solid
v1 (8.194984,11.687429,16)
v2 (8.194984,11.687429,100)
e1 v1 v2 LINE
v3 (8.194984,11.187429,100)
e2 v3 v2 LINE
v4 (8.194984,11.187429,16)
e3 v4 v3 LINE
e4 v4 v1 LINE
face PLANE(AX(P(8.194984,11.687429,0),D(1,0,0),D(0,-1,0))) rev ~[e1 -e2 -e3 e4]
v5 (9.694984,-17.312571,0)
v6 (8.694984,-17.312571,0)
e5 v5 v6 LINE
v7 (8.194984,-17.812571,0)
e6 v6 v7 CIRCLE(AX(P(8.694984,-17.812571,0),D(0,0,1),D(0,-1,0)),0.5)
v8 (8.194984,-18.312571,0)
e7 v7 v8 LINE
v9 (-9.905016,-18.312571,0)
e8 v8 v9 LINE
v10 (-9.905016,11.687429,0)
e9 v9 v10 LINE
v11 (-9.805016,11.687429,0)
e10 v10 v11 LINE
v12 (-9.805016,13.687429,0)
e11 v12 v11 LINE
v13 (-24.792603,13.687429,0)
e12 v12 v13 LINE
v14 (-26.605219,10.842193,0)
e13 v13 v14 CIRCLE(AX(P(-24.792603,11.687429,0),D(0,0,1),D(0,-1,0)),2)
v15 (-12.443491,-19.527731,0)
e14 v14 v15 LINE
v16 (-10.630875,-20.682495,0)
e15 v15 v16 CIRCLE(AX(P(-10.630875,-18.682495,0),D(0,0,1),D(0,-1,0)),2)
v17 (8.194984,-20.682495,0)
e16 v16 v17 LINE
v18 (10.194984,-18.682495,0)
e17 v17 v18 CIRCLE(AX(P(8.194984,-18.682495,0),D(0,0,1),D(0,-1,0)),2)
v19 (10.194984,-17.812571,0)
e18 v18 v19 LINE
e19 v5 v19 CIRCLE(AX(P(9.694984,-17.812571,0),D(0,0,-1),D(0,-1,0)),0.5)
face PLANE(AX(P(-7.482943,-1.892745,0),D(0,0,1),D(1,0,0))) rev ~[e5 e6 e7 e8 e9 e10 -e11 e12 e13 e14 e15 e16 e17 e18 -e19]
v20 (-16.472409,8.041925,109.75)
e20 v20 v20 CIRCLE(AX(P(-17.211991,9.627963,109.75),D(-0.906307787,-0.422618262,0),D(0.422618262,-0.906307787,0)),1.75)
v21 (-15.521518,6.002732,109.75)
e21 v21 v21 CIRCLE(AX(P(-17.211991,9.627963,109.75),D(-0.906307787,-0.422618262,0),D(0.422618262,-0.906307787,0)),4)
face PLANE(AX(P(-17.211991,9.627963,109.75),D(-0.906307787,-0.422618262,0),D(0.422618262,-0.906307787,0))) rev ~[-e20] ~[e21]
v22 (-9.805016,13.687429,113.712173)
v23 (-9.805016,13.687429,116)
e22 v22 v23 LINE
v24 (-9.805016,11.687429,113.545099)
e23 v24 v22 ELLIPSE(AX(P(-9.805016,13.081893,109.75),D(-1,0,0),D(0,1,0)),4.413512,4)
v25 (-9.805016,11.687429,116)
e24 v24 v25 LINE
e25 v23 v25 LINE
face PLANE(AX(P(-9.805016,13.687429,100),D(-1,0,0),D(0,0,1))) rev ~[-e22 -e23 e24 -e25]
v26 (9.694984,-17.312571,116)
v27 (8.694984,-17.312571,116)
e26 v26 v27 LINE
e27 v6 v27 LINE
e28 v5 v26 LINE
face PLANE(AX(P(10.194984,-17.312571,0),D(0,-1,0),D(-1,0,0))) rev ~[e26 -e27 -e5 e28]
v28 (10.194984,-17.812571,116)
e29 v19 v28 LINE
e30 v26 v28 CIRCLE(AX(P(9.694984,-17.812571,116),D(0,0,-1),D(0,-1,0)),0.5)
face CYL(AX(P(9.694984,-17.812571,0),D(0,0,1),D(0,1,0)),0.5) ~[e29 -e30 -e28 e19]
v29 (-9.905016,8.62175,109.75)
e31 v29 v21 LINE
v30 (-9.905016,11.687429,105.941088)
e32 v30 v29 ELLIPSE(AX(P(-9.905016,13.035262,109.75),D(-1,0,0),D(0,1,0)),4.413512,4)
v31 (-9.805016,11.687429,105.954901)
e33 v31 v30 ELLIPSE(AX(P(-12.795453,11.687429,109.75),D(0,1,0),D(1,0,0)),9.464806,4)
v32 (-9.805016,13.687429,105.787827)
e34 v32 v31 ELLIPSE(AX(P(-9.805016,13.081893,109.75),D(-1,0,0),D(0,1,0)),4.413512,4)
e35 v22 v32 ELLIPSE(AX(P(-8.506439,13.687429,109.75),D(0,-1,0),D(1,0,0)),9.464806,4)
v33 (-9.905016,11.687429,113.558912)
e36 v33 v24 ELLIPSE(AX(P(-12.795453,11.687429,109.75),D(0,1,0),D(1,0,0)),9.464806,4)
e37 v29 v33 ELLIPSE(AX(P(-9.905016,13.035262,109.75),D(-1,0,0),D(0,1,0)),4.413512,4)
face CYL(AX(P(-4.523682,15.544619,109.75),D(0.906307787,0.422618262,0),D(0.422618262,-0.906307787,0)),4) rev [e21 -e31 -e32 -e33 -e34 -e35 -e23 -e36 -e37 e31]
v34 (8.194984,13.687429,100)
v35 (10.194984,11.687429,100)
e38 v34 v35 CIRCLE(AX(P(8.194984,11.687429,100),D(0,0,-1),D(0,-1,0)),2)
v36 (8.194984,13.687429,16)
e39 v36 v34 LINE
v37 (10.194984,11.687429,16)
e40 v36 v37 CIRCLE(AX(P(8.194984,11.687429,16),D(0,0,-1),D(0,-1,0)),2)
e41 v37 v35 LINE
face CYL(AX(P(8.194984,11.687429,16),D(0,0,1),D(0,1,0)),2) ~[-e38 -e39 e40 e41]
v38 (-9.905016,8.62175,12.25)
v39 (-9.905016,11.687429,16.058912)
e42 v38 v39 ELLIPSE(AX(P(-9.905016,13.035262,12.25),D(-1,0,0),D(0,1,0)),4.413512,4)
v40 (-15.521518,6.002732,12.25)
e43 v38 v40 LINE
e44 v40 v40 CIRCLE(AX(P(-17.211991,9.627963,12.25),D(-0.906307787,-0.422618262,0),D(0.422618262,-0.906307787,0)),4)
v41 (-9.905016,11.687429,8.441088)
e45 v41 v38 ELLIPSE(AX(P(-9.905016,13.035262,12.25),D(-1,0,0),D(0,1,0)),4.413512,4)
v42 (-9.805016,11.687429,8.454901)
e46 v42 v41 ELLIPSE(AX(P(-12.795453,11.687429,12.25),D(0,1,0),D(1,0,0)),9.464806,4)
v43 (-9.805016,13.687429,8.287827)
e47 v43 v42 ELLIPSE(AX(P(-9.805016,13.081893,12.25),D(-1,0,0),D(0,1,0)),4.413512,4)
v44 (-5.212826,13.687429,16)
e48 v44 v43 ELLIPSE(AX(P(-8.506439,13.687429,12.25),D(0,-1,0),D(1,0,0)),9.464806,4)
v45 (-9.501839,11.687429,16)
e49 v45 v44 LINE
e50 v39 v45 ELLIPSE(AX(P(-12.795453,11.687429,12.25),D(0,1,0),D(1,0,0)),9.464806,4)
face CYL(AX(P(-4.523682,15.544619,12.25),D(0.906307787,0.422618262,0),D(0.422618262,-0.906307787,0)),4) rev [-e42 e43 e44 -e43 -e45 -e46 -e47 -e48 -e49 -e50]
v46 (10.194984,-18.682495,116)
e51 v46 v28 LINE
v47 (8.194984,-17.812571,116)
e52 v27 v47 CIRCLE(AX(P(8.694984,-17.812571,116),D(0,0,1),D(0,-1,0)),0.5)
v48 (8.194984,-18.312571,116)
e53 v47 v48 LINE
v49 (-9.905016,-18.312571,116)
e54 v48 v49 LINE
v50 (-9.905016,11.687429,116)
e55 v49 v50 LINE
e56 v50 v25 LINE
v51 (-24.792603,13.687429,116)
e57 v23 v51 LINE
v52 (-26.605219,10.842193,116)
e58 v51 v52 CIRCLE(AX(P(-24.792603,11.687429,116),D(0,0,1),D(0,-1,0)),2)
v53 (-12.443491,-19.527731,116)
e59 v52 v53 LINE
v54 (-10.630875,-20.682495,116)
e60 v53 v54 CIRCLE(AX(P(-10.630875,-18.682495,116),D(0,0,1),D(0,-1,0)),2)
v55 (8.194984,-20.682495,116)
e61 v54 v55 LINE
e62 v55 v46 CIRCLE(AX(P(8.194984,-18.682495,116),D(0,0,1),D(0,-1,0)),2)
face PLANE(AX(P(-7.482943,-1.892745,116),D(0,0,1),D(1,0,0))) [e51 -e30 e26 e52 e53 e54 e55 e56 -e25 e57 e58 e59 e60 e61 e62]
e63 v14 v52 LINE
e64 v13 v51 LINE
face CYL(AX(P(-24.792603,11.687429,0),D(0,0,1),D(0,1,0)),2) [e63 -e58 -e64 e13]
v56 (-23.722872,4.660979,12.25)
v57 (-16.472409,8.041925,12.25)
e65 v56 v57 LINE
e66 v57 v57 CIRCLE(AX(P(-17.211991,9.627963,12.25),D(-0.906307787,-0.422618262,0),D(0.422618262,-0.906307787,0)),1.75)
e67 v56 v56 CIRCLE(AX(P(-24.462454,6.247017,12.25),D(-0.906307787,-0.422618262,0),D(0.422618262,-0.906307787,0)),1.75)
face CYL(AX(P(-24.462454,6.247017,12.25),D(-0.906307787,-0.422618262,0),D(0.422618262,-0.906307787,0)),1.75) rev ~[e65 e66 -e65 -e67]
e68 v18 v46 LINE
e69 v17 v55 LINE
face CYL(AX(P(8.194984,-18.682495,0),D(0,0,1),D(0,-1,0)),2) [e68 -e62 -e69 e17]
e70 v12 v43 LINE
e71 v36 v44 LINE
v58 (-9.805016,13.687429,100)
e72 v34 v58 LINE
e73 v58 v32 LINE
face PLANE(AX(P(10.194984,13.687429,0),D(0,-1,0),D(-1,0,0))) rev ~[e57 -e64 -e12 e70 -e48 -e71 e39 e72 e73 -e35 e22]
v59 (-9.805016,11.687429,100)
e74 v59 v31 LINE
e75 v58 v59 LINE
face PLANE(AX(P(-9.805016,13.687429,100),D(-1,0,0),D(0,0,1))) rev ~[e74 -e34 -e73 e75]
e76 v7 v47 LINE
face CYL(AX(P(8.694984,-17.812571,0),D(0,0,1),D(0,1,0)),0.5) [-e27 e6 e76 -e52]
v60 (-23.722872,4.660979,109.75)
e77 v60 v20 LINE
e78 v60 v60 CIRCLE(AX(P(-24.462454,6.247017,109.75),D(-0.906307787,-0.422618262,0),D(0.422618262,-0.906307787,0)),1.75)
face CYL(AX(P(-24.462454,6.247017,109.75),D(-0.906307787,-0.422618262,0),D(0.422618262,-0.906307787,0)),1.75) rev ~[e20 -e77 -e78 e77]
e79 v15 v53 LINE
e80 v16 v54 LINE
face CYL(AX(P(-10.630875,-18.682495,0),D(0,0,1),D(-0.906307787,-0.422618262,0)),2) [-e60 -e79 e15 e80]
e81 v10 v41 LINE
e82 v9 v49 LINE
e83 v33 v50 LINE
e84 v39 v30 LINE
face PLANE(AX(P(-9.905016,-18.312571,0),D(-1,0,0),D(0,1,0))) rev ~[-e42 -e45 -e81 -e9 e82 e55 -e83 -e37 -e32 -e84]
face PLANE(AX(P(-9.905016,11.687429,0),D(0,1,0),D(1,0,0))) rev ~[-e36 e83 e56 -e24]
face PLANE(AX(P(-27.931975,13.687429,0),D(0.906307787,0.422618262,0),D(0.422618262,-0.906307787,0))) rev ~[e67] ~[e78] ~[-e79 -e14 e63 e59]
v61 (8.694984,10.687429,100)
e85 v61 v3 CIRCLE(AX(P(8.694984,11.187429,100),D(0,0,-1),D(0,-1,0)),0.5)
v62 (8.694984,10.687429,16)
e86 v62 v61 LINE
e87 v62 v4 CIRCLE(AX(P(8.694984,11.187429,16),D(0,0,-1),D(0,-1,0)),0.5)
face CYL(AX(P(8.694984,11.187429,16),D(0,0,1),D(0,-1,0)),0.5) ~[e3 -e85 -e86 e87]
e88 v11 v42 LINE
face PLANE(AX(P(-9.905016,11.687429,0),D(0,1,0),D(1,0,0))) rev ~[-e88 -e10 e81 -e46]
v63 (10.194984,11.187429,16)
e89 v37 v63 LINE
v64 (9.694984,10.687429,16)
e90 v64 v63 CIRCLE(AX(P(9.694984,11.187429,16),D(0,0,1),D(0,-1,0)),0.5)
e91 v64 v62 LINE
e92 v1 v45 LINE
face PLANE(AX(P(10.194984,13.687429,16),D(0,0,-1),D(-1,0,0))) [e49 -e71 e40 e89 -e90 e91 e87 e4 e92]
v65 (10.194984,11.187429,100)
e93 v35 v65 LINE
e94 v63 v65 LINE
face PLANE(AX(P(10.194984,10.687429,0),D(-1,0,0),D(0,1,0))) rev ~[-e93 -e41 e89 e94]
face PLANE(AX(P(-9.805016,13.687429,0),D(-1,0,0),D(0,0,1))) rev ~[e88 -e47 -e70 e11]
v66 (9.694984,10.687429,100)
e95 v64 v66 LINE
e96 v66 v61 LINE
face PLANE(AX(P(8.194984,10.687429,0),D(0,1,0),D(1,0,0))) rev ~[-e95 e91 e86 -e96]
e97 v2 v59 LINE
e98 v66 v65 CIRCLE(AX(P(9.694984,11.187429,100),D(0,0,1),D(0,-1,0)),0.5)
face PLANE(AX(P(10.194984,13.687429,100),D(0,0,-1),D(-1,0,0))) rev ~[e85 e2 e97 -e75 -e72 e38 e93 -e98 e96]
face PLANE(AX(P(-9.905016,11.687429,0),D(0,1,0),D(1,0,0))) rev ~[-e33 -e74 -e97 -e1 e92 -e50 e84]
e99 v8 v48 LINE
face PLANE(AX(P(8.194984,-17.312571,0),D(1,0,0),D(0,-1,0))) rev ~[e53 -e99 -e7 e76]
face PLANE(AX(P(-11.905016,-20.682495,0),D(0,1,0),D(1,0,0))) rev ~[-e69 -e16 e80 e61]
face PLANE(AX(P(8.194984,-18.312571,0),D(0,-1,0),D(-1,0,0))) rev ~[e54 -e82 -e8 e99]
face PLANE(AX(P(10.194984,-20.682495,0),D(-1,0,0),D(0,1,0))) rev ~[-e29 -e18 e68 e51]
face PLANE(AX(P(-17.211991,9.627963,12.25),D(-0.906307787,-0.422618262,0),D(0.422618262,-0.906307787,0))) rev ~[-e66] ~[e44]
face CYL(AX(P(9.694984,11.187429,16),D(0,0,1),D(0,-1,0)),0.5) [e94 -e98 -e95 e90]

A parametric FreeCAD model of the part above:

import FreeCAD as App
import Part
import Sketcher

V = App.Vector
Q = App.Units.Quantity


def edges_at(feature, points):
    """Names of the edges that pass closest to the given points."""
    edges = feature.Shape.Edges
    near = lambda p: min(range(len(edges)), key=lambda i: edges[i].distToShape(Part.Vertex(*p))[0])
    return sorted({f"Edge{near(p) + 1}" for p in points})

doc = App.newDocument("Part")
body = doc.addObject("PartDesign::Body", "Body")

# Sketch on XY plane
sketch1 = body.newObject("Sketcher::SketchObject", "Sketch")
sketch1.AttachmentSupport = (doc.getObject("XY_Plane"), [""])
sketch1.MapMode = "FlatFace"
sketch1.addGeometry([
    Part.LineSegment(V(10.194984, 13.687429, 0), V(-27.931975, 13.687429, 0)),  # 0
    Part.LineSegment(V(-27.931975, 13.687429, 0), V(-11.905016, -20.682495, 0)),  # 1
    Part.LineSegment(V(-11.905016, -20.682495, 0), V(10.194984, -20.682495, 0)),  # 2
    Part.LineSegment(V(10.194984, -20.682495, 0), V(10.194984, -17.312571, 0)),  # 3
    Part.LineSegment(V(10.194984, -17.312571, 0), V(8.194984, -17.312571, 0)),  # 4
    Part.LineSegment(V(8.194984, -17.312571, 0), V(8.194984, -18.312571, 0)),  # 5
    Part.LineSegment(V(8.194984, -18.312571, 0), V(-9.905016, -18.312571, 0)),  # 6
    Part.LineSegment(V(-9.905016, -18.312571, 0), V(-9.905016, 11.687429, 0)),  # 7
    Part.LineSegment(V(-9.905016, 11.687429, 0), V(8.194984, 11.687429, 0)),  # 8
    Part.LineSegment(V(8.194984, 11.687429, 0), V(8.194984, 10.687429, 0)),  # 9
    Part.LineSegment(V(8.194984, 10.687429, 0), V(10.194984, 10.687429, 0)),  # 10
    Part.LineSegment(V(10.194984, 10.687429, 0), V(10.194984, 13.687429, 0)),  # 11
], False)
sketch1.addConstraint([
    Sketcher.Constraint("Coincident", 0, 2, 1, 1),
    Sketcher.Constraint("Coincident", 1, 2, 2, 1),
    Sketcher.Constraint("Coincident", 2, 2, 3, 1),
    Sketcher.Constraint("Coincident", 3, 2, 4, 1),
    Sketcher.Constraint("Coincident", 4, 2, 5, 1),
    Sketcher.Constraint("Coincident", 5, 2, 6, 1),
    Sketcher.Constraint("Coincident", 6, 2, 7, 1),
    Sketcher.Constraint("Coincident", 7, 2, 8, 1),
    Sketcher.Constraint("Coincident", 8, 2, 9, 1),
    Sketcher.Constraint("Coincident", 9, 2, 10, 1),
    Sketcher.Constraint("Coincident", 10, 2, 11, 1),
    Sketcher.Constraint("Coincident", 11, 2, 0, 1),
    Sketcher.Constraint("Horizontal", 0),
    Sketcher.Constraint("Horizontal", 2),
    Sketcher.Constraint("Vertical", 3),
    Sketcher.Constraint("Horizontal", 4),
    Sketcher.Constraint("Vertical", 5),
    Sketcher.Constraint("Horizontal", 6),
    Sketcher.Constraint("Vertical", 7),
    Sketcher.Constraint("Horizontal", 8),
    Sketcher.Constraint("Vertical", 9),
    Sketcher.Constraint("Horizontal", 10),
    Sketcher.Constraint("Vertical", 11),
    Sketcher.Constraint("Vertical", 5, 2, 8, 2),
    Sketcher.Constraint("Vertical", 3, 2, 10, 2),
    Sketcher.Constraint("Equal", 5, 9),
    Sketcher.Constraint("DistanceX", 4, 2, 4, 1, 2.0),
    Sketcher.Constraint("DistanceY", 5, 2, 5, 1, 1.0),
    Sketcher.Constraint("DistanceY", 7, 1, 7, 2, 30.0),
    Sketcher.Constraint("DistanceY", 11, 1, 11, 2, 3.0),
    Sketcher.Constraint("Angle", 1, Q("-65 deg")),
    Sketcher.Constraint("DistanceX", 2, 1, 2, 2, 22.1),
    Sketcher.Constraint("DistanceX", 6, 2, 6, 1, 18.1),
    Sketcher.Constraint("DistanceX", 0, 2, 0, 1, 38.126959),
    Sketcher.Constraint("DistanceY", -1, 1, 0, 2, 13.687429),
    Sketcher.Constraint("DistanceX", 0, 2, -1, 1, 27.931975),
])
pad1 = body.newObject("PartDesign::Pad", "Pad")
pad1.Profile = sketch1
pad1.Length = 116

# Sketch on an angled plane
sketch2 = body.newObject("Sketcher::SketchObject", "Sketch001")
sketch2.Placement = App.Placement(V(-17.700561, -8.253907, 0), App.Rotation(V(0.422618262, -0.906307787, 0), V(0, 0, 1), V(-0.906307787, -0.422618262, 0), "ZXY"))
sketch2.addGeometry([
    Part.Circle(V(-16, 109.75, 0), V(0, 0, 1), 1.75),
    Part.Circle(V(-16, 12.25, 0), V(0, 0, 1), 1.75),
], False)
sketch2.addConstraint([
    Sketcher.Constraint("Equal", 0, 1),
    Sketcher.Constraint("Vertical", 0, 3, 1, 3),
    Sketcher.Constraint("Diameter", 0, 3.5),
    Sketcher.Constraint("DistanceX", 0, 3, -1, 1, 16.0),
    Sketcher.Constraint("DistanceY", 1, 3, 0, 3, 97.5),
    Sketcher.Constraint("DistanceY", -1, 1, 0, 3, 109.75),
])
pocket1 = body.newObject("PartDesign::Pocket", "Pocket")
pocket1.Profile = sketch2
pocket1.Length = 17.605514

# Sketch on an angled plane
sketch3 = body.newObject("Sketcher::SketchObject", "Sketch002")
sketch3.Placement = App.Placement(V(2.23821, 1.043694, 0), App.Rotation(V(0.422618262, -0.906307787, 0), V(0, 0, 1), V(-0.906307787, -0.422618262, 0), "ZXY"))
sketch3.addGeometry([
    Part.Circle(V(-16, 109.75, 0), V(0, 0, 1), 4),
    Part.Circle(V(-16, 12.25, 0), V(0, 0, 1), 4),
], False)
sketch3.addConstraint([
    Sketcher.Constraint("Equal", 0, 1),
    Sketcher.Constraint("Vertical", 0, 3, 1, 3),
    Sketcher.Constraint("Diameter", 0, 8.0),
    Sketcher.Constraint("DistanceX", 0, 3, -1, 1, 16.0),
    Sketcher.Constraint("DistanceY", 1, 3, 0, 3, 97.5),
    Sketcher.Constraint("DistanceY", -1, 1, 0, 3, 109.75),
])
pocket2 = body.newObject("PartDesign::Pocket", "Pocket001")
pocket2.Profile = sketch3
pocket2.Length = 14
pocket2.Reversed = True

# Sketch on XZ plane
sketch4 = body.newObject("Sketcher::SketchObject", "Sketch003")
sketch4.AttachmentSupport = (doc.getObject("XZ_Plane"), [""])
sketch4.MapMode = "FlatFace"
sketch4.AttachmentOffset = App.Placement(V(0, 0, -13.687429), App.Rotation())
sketch4.addGeometry([
    Part.LineSegment(V(10.194984, 16, 0), V(10.194984, 0, 0)),  # 0
    Part.LineSegment(V(10.194984, 0, 0), V(-9.805016, 0, 0)),  # 1
    Part.LineSegment(V(-9.805016, 0, 0), V(-9.805016, 16, 0)),  # 2
    Part.LineSegment(V(-9.805016, 16, 0), V(10.194984, 16, 0)),  # 3
    Part.LineSegment(V(10.194984, 116, 0), V(10.194984, 100, 0)),  # 4
    Part.LineSegment(V(10.194984, 100, 0), V(-9.805016, 100, 0)),  # 5
    Part.LineSegment(V(-9.805016, 100, 0), V(-9.805016, 116, 0)),  # 6
    Part.LineSegment(V(-9.805016, 116, 0), V(10.194984, 116, 0)),  # 7
], False)
sketch4.addConstraint([
    Sketcher.Constraint("Coincident", 0, 2, 1, 1),
    Sketcher.Constraint("Coincident", 1, 2, 2, 1),
    Sketcher.Constraint("Coincident", 2, 2, 3, 1),
    Sketcher.Constraint("Coincident", 3, 2, 0, 1),
    Sketcher.Constraint("Coincident", 4, 2, 5, 1),
    Sketcher.Constraint("Coincident", 5, 2, 6, 1),
    Sketcher.Constraint("Coincident", 6, 2, 7, 1),
    Sketcher.Constraint("Coincident", 7, 2, 4, 1),
    Sketcher.Constraint("Vertical", 0),
    Sketcher.Constraint("Horizontal", 1),
    Sketcher.Constraint("Vertical", 2),
    Sketcher.Constraint("Horizontal", 3),
    Sketcher.Constraint("Vertical", 4),
    Sketcher.Constraint("Horizontal", 5),
    Sketcher.Constraint("Vertical", 6),
    Sketcher.Constraint("Horizontal", 7),
    Sketcher.Constraint("PointOnObject", 0, 2, -1),
    Sketcher.Constraint("Vertical", 3, 2, 4, 2),
    Sketcher.Constraint("Vertical", 2, 2, 5, 2),
    Sketcher.Constraint("Equal", 2, 4),
    Sketcher.Constraint("DistanceX", 1, 2, 1, 1, 20.0),
    Sketcher.Constraint("DistanceY", 0, 2, 0, 1, 16.0),
    Sketcher.Constraint("DistanceY", -1, 1, 4, 2, 100.0),
    Sketcher.Constraint("DistanceX", -1, 1, 0, 2, 10.194984),
])
pocket3 = body.newObject("PartDesign::Pocket", "Pocket002")
pocket3.Profile = sketch4
pocket3.Length = 5
pocket3.Reversed = True
doc.recompute()

fillet = body.newObject("PartDesign::Fillet", "Fillet")
fillet.Base = (pocket3, edges_at(pocket3, [(-27.932, 13.687, 58), (-11.905, -20.682, 58)]))
fillet.Radius = 2
doc.recompute()

fillet2 = body.newObject("PartDesign::Fillet", "Fillet001")
fillet2.Base = (fillet, edges_at(fillet, [(10.195, -20.682, 58), (10.195, 13.687, 58)]))
fillet2.Radius = 2
doc.recompute()

fillet3 = body.newObject("PartDesign::Fillet", "Fillet002")
fillet3.Base = (fillet2, edges_at(fillet2, [(8.195, 10.687, 58), (8.195, -17.313, 58)]))
fillet3.Radius = 0.5
doc.recompute()

fillet4 = body.newObject("PartDesign::Fillet", "Fillet003")
fillet4.Base = (fillet3, edges_at(fillet3, [(10.195, 10.687, 58), (10.195, -17.313, 58)]))
fillet4.Radius = 0.5

doc.recompute()
